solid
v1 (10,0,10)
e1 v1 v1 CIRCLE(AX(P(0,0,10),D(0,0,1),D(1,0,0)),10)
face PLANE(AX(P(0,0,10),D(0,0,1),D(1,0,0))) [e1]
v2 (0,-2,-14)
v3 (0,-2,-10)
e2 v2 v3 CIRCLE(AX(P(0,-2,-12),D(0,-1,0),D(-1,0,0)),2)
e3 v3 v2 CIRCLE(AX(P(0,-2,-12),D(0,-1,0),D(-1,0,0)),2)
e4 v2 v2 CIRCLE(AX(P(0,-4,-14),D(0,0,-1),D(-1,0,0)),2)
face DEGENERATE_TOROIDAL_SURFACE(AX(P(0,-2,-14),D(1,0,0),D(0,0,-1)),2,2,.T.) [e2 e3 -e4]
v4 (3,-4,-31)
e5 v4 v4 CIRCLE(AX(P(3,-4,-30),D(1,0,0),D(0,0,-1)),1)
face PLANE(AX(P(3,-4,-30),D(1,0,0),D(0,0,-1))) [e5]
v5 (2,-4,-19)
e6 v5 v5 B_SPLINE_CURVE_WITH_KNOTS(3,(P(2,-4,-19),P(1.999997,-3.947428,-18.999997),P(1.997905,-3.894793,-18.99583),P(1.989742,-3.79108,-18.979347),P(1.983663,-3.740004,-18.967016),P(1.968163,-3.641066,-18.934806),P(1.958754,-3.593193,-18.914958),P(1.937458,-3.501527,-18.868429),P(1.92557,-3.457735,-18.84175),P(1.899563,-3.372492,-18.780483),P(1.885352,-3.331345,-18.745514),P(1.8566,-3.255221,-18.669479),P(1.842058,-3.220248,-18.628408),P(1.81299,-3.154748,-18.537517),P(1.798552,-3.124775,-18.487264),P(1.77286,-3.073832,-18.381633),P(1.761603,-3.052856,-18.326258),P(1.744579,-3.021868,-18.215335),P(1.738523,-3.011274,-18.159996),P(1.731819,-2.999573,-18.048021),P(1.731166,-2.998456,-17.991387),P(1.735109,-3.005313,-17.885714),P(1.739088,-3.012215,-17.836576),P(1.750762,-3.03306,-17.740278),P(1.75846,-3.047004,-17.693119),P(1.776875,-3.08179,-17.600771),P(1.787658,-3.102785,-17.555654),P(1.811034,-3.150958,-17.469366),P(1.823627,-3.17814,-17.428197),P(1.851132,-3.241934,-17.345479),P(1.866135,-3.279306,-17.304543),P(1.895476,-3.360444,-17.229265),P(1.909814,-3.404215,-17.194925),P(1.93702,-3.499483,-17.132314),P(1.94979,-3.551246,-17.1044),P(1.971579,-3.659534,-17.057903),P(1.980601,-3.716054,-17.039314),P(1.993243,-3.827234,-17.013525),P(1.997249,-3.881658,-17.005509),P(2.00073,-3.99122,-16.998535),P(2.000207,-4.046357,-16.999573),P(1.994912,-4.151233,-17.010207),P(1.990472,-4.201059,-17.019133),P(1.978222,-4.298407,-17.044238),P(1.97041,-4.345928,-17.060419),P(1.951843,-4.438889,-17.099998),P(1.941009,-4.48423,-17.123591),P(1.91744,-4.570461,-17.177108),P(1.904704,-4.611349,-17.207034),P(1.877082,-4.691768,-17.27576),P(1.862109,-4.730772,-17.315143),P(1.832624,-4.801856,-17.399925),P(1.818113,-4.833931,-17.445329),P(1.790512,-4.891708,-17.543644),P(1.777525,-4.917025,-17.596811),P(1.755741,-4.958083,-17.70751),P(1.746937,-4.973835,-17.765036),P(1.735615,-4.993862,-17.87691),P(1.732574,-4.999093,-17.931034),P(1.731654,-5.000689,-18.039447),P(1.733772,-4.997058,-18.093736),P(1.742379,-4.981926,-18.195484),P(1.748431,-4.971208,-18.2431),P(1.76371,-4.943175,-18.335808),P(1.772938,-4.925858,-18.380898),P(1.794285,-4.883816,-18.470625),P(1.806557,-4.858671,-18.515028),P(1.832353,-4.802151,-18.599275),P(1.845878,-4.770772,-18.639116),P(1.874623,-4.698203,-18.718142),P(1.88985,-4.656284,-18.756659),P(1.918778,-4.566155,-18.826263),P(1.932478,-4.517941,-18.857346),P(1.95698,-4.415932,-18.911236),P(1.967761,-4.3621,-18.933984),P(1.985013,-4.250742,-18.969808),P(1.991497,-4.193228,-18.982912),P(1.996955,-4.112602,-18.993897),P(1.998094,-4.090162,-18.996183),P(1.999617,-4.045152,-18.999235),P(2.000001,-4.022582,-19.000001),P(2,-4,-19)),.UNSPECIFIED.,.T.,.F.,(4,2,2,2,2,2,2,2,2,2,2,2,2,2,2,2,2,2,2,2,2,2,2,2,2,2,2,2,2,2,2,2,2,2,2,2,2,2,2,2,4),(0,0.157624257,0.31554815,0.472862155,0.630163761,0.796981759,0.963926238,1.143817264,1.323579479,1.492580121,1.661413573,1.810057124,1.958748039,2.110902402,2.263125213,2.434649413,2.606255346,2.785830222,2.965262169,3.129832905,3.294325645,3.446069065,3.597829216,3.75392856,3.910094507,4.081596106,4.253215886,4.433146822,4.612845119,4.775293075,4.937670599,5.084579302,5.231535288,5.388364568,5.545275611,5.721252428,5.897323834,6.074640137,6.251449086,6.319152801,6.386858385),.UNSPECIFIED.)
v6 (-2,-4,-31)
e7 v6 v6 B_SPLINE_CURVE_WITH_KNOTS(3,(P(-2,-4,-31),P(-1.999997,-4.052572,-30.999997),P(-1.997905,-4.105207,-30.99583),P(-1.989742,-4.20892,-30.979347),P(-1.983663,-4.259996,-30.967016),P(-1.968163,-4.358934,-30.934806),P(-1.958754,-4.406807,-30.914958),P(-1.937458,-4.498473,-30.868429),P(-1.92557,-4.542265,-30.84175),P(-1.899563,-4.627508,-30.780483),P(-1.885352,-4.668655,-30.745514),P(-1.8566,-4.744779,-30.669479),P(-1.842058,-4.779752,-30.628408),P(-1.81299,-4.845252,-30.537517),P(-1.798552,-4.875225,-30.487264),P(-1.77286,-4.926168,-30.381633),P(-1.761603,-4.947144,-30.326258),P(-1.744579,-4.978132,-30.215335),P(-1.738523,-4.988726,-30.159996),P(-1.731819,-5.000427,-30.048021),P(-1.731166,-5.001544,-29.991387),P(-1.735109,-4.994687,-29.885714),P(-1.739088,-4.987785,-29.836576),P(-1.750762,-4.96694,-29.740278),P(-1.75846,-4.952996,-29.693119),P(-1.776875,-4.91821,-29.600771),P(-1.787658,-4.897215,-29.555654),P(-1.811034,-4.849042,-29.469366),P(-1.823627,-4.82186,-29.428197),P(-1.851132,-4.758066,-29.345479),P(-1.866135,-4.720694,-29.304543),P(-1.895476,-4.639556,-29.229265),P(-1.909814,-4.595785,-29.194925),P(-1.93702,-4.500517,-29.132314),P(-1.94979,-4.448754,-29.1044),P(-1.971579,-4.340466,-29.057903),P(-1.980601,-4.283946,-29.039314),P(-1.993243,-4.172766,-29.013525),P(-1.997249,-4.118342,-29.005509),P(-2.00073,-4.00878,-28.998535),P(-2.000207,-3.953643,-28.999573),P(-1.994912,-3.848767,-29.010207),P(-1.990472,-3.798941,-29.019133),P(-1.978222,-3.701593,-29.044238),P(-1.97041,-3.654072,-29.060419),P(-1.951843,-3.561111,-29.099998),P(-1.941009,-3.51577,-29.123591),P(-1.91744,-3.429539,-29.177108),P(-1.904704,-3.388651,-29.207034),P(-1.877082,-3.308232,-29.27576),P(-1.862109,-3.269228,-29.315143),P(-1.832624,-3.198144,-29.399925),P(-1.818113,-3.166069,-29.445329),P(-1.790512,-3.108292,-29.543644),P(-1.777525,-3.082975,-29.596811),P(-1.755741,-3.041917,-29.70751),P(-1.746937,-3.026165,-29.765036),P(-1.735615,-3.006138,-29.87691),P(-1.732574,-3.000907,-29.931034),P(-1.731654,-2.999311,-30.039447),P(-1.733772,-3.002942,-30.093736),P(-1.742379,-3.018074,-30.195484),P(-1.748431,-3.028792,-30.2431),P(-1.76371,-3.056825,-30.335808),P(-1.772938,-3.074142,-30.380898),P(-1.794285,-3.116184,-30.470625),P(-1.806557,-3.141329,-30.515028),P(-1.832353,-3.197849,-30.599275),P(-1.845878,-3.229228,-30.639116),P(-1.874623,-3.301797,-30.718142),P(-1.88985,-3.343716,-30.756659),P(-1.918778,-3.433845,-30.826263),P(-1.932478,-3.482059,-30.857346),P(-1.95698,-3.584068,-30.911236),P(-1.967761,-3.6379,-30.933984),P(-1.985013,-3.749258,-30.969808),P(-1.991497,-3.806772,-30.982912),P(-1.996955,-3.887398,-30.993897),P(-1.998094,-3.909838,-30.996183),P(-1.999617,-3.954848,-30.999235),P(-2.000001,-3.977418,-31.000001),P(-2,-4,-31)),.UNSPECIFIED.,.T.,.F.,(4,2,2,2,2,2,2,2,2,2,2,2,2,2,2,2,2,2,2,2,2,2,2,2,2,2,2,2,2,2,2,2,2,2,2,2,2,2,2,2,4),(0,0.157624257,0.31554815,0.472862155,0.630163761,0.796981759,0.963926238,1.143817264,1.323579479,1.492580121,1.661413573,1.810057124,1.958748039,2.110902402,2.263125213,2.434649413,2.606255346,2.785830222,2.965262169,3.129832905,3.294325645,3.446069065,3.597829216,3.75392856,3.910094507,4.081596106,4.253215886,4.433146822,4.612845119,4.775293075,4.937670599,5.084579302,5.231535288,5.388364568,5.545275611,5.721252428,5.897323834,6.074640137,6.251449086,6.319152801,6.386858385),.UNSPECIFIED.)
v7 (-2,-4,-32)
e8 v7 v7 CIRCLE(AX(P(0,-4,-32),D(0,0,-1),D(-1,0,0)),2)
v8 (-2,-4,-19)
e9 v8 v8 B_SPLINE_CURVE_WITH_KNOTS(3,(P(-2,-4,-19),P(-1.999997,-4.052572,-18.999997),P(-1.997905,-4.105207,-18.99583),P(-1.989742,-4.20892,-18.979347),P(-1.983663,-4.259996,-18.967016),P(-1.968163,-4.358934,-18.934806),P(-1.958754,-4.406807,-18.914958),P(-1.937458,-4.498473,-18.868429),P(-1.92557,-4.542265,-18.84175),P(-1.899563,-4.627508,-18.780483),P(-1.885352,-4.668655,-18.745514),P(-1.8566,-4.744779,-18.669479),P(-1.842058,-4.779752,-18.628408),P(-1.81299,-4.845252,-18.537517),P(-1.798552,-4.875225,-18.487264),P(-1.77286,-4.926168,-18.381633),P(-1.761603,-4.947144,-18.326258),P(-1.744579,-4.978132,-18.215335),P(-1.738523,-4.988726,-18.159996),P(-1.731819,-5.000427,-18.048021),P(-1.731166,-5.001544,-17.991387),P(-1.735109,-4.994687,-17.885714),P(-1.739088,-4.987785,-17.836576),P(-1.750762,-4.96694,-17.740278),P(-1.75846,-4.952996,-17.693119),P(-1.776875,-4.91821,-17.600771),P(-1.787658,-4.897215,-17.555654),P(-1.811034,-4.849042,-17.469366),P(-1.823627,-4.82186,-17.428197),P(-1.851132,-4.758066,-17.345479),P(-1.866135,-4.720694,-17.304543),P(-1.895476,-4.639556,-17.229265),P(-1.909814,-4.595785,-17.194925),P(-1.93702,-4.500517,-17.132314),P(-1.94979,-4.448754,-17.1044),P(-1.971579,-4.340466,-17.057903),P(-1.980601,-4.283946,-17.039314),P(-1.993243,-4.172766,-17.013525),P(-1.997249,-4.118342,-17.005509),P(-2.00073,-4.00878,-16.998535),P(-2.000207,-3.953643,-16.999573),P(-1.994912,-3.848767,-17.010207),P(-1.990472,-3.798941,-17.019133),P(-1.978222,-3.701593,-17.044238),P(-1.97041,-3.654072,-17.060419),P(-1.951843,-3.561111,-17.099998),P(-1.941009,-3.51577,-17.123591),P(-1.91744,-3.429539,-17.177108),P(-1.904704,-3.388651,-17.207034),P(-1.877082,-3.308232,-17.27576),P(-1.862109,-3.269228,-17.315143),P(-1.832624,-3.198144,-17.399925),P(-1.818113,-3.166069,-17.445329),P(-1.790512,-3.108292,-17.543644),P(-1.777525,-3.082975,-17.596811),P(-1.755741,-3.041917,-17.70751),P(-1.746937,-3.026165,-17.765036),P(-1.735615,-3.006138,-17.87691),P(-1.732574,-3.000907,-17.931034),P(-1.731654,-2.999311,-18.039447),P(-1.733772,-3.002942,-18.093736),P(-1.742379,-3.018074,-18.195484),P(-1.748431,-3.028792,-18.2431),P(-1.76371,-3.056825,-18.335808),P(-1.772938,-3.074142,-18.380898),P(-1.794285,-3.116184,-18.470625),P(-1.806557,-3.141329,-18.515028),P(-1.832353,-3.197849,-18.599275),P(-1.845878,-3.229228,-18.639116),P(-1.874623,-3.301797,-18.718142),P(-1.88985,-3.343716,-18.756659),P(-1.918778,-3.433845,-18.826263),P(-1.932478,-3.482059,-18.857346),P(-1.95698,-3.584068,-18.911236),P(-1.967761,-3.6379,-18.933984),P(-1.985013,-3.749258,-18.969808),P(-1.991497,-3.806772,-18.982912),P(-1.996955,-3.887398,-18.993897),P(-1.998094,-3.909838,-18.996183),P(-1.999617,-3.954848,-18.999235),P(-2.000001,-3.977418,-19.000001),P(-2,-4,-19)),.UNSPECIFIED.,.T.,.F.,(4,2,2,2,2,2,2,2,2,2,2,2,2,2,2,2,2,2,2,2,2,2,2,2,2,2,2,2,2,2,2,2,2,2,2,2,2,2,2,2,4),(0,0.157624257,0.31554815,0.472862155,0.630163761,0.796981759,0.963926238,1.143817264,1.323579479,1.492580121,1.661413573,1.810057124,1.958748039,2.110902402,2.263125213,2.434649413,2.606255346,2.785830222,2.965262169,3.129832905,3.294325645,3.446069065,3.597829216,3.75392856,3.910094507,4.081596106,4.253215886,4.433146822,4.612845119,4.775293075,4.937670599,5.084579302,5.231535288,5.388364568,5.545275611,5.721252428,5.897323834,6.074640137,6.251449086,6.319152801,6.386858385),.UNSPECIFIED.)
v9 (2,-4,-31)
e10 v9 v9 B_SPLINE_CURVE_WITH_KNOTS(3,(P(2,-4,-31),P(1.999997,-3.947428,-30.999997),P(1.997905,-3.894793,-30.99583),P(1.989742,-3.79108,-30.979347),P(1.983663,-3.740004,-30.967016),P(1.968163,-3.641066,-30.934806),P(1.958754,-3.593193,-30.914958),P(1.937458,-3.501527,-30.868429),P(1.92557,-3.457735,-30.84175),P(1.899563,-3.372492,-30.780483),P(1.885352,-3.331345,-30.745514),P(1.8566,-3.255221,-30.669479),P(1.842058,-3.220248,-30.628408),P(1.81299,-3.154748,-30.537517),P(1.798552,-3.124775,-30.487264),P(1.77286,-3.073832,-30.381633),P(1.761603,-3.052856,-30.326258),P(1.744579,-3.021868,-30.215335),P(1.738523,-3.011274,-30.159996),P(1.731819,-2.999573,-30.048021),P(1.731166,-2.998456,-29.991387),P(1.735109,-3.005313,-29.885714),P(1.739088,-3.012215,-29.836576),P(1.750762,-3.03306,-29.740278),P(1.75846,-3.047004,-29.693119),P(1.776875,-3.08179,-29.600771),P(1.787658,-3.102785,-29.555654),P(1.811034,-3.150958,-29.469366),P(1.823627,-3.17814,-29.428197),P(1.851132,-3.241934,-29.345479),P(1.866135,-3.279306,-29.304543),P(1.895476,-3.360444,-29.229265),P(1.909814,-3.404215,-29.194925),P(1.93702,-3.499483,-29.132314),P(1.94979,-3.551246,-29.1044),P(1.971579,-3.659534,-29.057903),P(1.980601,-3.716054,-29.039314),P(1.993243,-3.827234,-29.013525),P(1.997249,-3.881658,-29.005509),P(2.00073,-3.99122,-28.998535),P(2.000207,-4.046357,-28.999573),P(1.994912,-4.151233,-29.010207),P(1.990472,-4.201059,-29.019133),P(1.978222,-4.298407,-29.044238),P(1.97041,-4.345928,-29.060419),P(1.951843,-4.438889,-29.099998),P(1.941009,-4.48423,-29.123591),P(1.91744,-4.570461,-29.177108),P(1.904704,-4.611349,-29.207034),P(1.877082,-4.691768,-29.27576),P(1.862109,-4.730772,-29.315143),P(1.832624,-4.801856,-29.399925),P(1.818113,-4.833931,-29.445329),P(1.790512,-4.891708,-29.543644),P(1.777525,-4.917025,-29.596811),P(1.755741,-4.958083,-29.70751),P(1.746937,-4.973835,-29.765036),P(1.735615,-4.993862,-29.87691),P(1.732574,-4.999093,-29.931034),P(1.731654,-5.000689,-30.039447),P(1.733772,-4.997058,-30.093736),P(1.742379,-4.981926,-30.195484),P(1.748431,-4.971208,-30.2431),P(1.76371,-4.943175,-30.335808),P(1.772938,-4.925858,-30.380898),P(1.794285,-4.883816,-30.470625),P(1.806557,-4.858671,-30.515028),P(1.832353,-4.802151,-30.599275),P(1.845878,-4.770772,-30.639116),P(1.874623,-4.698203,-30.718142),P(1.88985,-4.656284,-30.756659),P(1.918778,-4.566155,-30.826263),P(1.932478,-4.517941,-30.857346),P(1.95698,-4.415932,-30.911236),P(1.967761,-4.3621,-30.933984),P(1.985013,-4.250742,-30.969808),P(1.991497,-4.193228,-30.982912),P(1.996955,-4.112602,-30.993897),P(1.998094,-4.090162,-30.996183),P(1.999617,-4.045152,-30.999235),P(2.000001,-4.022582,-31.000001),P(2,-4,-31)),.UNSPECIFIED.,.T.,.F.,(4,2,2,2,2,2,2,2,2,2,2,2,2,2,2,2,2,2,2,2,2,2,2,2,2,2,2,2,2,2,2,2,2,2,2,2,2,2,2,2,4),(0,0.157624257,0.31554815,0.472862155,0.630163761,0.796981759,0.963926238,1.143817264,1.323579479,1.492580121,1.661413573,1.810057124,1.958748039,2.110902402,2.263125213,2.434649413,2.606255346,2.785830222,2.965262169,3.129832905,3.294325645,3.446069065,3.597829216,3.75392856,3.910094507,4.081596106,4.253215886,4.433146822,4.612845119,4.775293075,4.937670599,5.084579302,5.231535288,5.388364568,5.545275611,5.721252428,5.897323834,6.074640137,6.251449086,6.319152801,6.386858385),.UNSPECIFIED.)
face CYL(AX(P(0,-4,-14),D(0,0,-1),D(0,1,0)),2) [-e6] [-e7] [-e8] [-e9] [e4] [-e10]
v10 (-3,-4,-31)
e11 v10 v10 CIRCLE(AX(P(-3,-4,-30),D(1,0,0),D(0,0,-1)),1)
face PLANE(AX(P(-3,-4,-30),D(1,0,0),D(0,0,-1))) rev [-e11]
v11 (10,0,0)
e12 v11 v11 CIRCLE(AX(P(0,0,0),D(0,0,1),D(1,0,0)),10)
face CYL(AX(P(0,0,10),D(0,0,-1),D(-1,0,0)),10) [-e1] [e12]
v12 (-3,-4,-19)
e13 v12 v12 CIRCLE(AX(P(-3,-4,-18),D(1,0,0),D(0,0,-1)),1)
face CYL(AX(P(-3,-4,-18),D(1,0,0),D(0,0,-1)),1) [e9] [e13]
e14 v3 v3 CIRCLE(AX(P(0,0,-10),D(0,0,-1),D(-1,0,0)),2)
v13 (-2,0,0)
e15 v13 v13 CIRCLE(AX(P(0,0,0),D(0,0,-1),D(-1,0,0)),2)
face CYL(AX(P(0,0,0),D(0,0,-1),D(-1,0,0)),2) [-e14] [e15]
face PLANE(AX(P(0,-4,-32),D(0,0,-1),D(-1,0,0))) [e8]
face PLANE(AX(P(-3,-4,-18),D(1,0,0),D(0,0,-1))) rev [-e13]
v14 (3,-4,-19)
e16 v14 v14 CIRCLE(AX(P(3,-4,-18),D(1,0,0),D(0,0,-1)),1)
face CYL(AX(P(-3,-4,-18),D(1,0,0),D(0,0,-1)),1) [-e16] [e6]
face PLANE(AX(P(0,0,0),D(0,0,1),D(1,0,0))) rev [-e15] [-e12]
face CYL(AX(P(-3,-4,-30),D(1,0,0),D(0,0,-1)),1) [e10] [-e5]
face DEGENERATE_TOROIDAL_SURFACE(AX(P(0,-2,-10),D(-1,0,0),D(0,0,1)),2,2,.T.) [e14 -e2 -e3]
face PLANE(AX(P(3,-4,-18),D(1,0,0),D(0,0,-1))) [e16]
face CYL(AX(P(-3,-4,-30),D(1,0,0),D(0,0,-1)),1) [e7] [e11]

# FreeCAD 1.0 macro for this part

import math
import FreeCAD as App
import Part
import Sketcher
from FreeCAD import Vector

doc = App.newDocument("Part")
body = doc.addObject("PartDesign::Body", "Body")

sketch1 = doc.addObject("Sketcher::SketchObject", "Sketch")
body.addObject(sketch1)
sketch1.AttachmentSupport = (doc.XY_Plane, [""])
sketch1.MapMode = "FlatFace"
sketch1.addGeometry(Part.Circle(Vector(0, 0, 0), Vector(0, 0, 1), 10), False)
sketch1.addConstraint(Sketcher.Constraint("Coincident", 0, 3, -1, 1))
sketch1.addConstraint(Sketcher.Constraint("Diameter", 0, 20.0))
pad1 = doc.addObject("PartDesign::Pad", "Pad")
body.addObject(pad1)
pad1.Profile = sketch1
pad1.Length = 10

sketch2 = doc.addObject("Sketcher::SketchObject", "Sketch001")
body.addObject(sketch2)
sketch2.AttachmentSupport = (doc.XY_Plane, [""])
sketch2.MapMode = "FlatFace"
sketch2.addGeometry(Part.Circle(Vector(0, 0, 0), Vector(0, 0, 1), 2), False)
sketch2.addConstraint(Sketcher.Constraint("Coincident", 0, 3, -1, 1))
sketch2.addConstraint(Sketcher.Constraint("Diameter", 0, 4.0))

sketch3 = doc.addObject("Sketcher::SketchObject", "Sketch002")
body.addObject(sketch3)
sketch3.AttachmentSupport = (doc.YZ_Plane, [""])
sketch3.MapMode = "FlatFace"
sketch3.addGeometry(Part.LineSegment(Vector(0, 0, 0), Vector(0, -10, 0)), False)
sketch3.addGeometry(Part.ArcOfCircle(Part.Circle(Vector(-2, -10, 0), Vector(0, 0, 1), 2), math.radians(-90), math.radians(0)), False)
sketch3.addGeometry(Part.ArcOfCircle(Part.Circle(Vector(-2, -14, 0), Vector(0, 0, 1), 2), math.radians(90), math.radians(180)), False)
sketch3.addGeometry(Part.LineSegment(Vector(-4, -14, 0), Vector(-4, -32, 0)), False)
sketch3.addConstraint(Sketcher.Constraint("Tangent", 0, 2, 1, 2))
sketch3.addConstraint(Sketcher.Constraint("Tangent", 1, 1, 2, 1))
sketch3.addConstraint(Sketcher.Constraint("Tangent", 2, 2, 3, 1))
sketch3.addConstraint(Sketcher.Constraint("Vertical", 0))
sketch3.addConstraint(Sketcher.Constraint("Vertical", 3))
sketch3.addConstraint(Sketcher.Constraint("Coincident", 0, 1, -1, 1))
sketch3.addConstraint(Sketcher.Constraint("Equal", 1, 2))
sketch3.addConstraint(Sketcher.Constraint("Vertical", 1, 3, 2, 3))
sketch3.addConstraint(Sketcher.Constraint("Radius", 1, 2.0))
sketch3.addConstraint(Sketcher.Constraint("DistanceY", 0, 2, 0, 1, 10.0))
sketch3.addConstraint(Sketcher.Constraint("DistanceY", 3, 2, 3, 1, 18.0))
doc.recompute()

additivepipe = doc.addObject("PartDesign::AdditivePipe", "AdditivePipe")
body.addObject(additivepipe)
additivepipe.Profile = sketch2
additivepipe.Spine = (sketch3, ["Edge1", "Edge2", "Edge3", "Edge4"])

sketch4 = doc.addObject("Sketcher::SketchObject", "Sketch003")
body.addObject(sketch4)
sketch4.AttachmentSupport = (doc.YZ_Plane, [""])
sketch4.MapMode = "FlatFace"
sketch4.addGeometry(Part.Circle(Vector(-4, -18, 0), Vector(0, 0, 1), 1), False)
sketch4.addGeometry(Part.Circle(Vector(-4, -30, 0), Vector(0, 0, 1), 1), False)
sketch4.addConstraint(Sketcher.Constraint("Equal", 0, 1))
sketch4.addConstraint(Sketcher.Constraint("Vertical", 0, 3, 1, 3))
sketch4.addConstraint(Sketcher.Constraint("Diameter", 0, 2.0))
sketch4.addConstraint(Sketcher.Constraint("DistanceX", 0, 3, -1, 1, 4.0))
sketch4.addConstraint(Sketcher.Constraint("DistanceY", 0, 3, -1, 1, 18.0))
sketch4.addConstraint(Sketcher.Constraint("DistanceY", 1, 3, -1, 1, 30.0))
pad2 = doc.addObject("PartDesign::Pad", "Pad001")
body.addObject(pad2)
pad2.Profile = sketch4
pad2.Type = "TwoLengths"
pad2.Length = 3
pad2.Length2 = 3

doc.recompute()
